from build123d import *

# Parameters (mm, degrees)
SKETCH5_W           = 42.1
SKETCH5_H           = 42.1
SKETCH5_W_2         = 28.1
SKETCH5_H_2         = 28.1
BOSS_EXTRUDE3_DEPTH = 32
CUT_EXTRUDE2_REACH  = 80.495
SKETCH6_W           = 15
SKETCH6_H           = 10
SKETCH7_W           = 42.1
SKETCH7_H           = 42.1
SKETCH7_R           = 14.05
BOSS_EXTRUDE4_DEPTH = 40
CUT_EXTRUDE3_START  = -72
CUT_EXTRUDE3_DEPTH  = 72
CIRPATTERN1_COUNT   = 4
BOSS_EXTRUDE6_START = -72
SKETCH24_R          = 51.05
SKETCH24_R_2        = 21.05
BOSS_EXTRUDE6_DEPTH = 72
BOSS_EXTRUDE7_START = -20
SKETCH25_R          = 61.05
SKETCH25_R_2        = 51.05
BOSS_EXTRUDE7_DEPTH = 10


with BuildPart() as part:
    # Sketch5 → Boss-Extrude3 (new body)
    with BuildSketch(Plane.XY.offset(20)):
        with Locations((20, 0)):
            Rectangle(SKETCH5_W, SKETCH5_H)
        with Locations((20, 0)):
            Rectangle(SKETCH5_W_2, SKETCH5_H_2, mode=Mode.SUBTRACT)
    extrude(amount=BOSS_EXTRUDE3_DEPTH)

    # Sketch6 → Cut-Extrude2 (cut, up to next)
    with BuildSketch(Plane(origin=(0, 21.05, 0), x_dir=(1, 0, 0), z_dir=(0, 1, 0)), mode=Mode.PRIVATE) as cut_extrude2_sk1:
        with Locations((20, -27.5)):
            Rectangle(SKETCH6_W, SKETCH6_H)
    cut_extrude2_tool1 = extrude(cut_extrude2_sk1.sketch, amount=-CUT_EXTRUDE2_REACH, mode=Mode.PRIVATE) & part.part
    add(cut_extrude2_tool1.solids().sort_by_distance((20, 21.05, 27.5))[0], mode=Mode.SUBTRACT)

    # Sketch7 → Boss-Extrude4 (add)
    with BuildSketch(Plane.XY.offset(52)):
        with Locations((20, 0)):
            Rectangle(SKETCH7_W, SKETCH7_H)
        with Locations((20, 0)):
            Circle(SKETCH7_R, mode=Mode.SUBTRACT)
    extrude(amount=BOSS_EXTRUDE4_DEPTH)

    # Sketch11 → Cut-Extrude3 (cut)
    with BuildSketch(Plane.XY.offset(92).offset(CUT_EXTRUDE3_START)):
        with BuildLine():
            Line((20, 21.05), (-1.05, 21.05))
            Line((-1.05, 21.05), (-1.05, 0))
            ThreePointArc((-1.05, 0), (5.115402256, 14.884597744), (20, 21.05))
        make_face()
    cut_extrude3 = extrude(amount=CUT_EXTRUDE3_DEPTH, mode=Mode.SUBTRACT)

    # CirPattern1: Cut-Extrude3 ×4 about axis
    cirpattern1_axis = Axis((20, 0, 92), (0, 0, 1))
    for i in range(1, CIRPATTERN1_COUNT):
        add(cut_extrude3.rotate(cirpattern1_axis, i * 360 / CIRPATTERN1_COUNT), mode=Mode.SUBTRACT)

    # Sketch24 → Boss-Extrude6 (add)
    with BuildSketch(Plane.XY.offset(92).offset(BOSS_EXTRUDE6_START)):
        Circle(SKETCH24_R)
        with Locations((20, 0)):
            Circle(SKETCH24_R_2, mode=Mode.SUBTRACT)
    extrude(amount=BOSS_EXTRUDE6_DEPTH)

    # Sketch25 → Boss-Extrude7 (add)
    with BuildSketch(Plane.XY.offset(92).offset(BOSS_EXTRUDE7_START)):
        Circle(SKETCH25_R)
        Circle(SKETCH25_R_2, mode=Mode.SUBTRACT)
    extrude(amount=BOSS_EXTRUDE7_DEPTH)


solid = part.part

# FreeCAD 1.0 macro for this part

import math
import FreeCAD as App
import Part
import Sketcher
from FreeCAD import Vector

doc = App.newDocument("Part")
body = doc.addObject("PartDesign::Body", "Body")

sketch1 = body.newObject("Sketcher::SketchObject", "Sketch")
sketch1.AttachmentSupport = (doc.getObject("XY_Plane"), [""])
sketch1.MapMode = "FlatFace"
sketch1.AttachmentOffset = App.Placement(Vector(0, 0, 20), App.Rotation())
sketch1.addGeometry(Part.LineSegment(Vector(-1, 21, 0), Vector(-1, -21, 0)), False)
sketch1.addGeometry(Part.LineSegment(Vector(-1, -21, 0), Vector(41, -21, 0)), False)
sketch1.addGeometry(Part.LineSegment(Vector(41, -21, 0), Vector(41, 21, 0)), False)
sketch1.addGeometry(Part.LineSegment(Vector(41, 21, 0), Vector(-1, 21, 0)), False)
sketch1.addGeometry(Part.LineSegment(Vector(34, -14, 0), Vector(6, -14, 0)), False)
sketch1.addGeometry(Part.LineSegment(Vector(6, -14, 0), Vector(6, 14, 0)), False)
sketch1.addGeometry(Part.LineSegment(Vector(6, 14, 0), Vector(34, 14, 0)), False)
sketch1.addGeometry(Part.LineSegment(Vector(34, 14, 0), Vector(34, -14, 0)), False)
sketch1.addConstraint(Sketcher.Constraint("Coincident", 0, 2, 1, 1))
sketch1.addConstraint(Sketcher.Constraint("Coincident", 1, 2, 2, 1))
sketch1.addConstraint(Sketcher.Constraint("Coincident", 2, 2, 3, 1))
sketch1.addConstraint(Sketcher.Constraint("Coincident", 3, 2, 0, 1))
sketch1.addConstraint(Sketcher.Constraint("Coincident", 4, 2, 5, 1))
sketch1.addConstraint(Sketcher.Constraint("Coincident", 5, 2, 6, 1))
sketch1.addConstraint(Sketcher.Constraint("Coincident", 6, 2, 7, 1))
sketch1.addConstraint(Sketcher.Constraint("Coincident", 7, 2, 4, 1))
sketch1.addConstraint(Sketcher.Constraint("Vertical", 0))
sketch1.addConstraint(Sketcher.Constraint("Horizontal", 1))
sketch1.addConstraint(Sketcher.Constraint("Vertical", 2))
sketch1.addConstraint(Sketcher.Constraint("Horizontal", 3))
sketch1.addConstraint(Sketcher.Constraint("Horizontal", 4))
sketch1.addConstraint(Sketcher.Constraint("Vertical", 5))
sketch1.addConstraint(Sketcher.Constraint("Horizontal", 6))
sketch1.addConstraint(Sketcher.Constraint("Vertical", 7))
sketch1.addConstraint(Sketcher.Constraint("Equal", 3, 0))
sketch1.addConstraint(Sketcher.Constraint("Equal", 6, 5))
sketch1.addConstraint(Sketcher.Constraint("DistanceX", 1, 1, 1, 2, 42.1))
sketch1.addConstraint(Sketcher.Constraint("DistanceX", 4, 2, 4, 1, 28.1))
sketch1.addConstraint(Sketcher.Constraint("DistanceX", 0, 2, 4, 2, 7.0))
sketch1.addConstraint(Sketcher.Constraint("DistanceY", 0, 2, 4, 2, 7.0))
sketch1.addConstraint(Sketcher.Constraint("DistanceX", 0, 2, -1, 1, 1.05))
sketch1.addConstraint(Sketcher.Constraint("DistanceY", 0, 2, -1, 1, 21.05))
pad1 = body.newObject("PartDesign::Pad", "Pad")
pad1.Profile = sketch1
pad1.Length = 32

sketch2 = body.newObject("Sketcher::SketchObject", "Sketch001")
sketch2.AttachmentSupport = (doc.getObject("XZ_Plane"), [""])
sketch2.MapMode = "FlatFace"
sketch2.AttachmentOffset = App.Placement(Vector(0, 0, -21.05), App.Rotation())
sketch2.addGeometry(Part.LineSegment(Vector(12, 22, 0), Vector(12, 32, 0)), False)
sketch2.addGeometry(Part.LineSegment(Vector(12, 32, 0), Vector(28, 32, 0)), False)
sketch2.addGeometry(Part.LineSegment(Vector(28, 32, 0), Vector(28, 22, 0)), False)
sketch2.addGeometry(Part.LineSegment(Vector(28, 22, 0), Vector(12, 22, 0)), False)
sketch2.addConstraint(Sketcher.Constraint("Coincident", 0, 2, 1, 1))
sketch2.addConstraint(Sketcher.Constraint("Coincident", 1, 2, 2, 1))
sketch2.addConstraint(Sketcher.Constraint("Coincident", 2, 2, 3, 1))
sketch2.addConstraint(Sketcher.Constraint("Coincident", 3, 2, 0, 1))
sketch2.addConstraint(Sketcher.Constraint("Vertical", 0))
sketch2.addConstraint(Sketcher.Constraint("Horizontal", 1))
sketch2.addConstraint(Sketcher.Constraint("Vertical", 2))
sketch2.addConstraint(Sketcher.Constraint("Horizontal", 3))
sketch2.addConstraint(Sketcher.Constraint("DistanceX", 1, 1, 1, 2, 15.0))
sketch2.addConstraint(Sketcher.Constraint("DistanceY", 0, 1, 0, 2, 10.0))
sketch2.addConstraint(Sketcher.Constraint("DistanceX", -1, 1, 0, 2, 12.5))
sketch2.addConstraint(Sketcher.Constraint("DistanceY", -1, 1, 0, 2, 32.5))
pocket1 = body.newObject("PartDesign::Pocket", "Pocket")
pocket1.Profile = sketch2
pocket1.Type = "UpToFirst"
pocket1.Reversed = True

sketch3 = body.newObject("Sketcher::SketchObject", "Sketch002")
sketch3.AttachmentSupport = (doc.getObject("XY_Plane"), [""])
sketch3.MapMode = "FlatFace"
sketch3.AttachmentOffset = App.Placement(Vector(0, 0, 52), App.Rotation())
sketch3.addGeometry(Part.LineSegment(Vector(-1, 21, 0), Vector(-1, -21, 0)), False)
sketch3.addGeometry(Part.LineSegment(Vector(-1, -21, 0), Vector(41, -21, 0)), False)
sketch3.addGeometry(Part.LineSegment(Vector(41, -21, 0), Vector(41, 21, 0)), False)
sketch3.addGeometry(Part.LineSegment(Vector(41, 21, 0), Vector(-1, 21, 0)), False)
sketch3.addGeometry(Part.Circle(Vector(20, 0, 0), Vector(0, 0, 1), 14), False)
sketch3.addConstraint(Sketcher.Constraint("Coincident", 0, 2, 1, 1))
sketch3.addConstraint(Sketcher.Constraint("Coincident", 1, 2, 2, 1))
sketch3.addConstraint(Sketcher.Constraint("Coincident", 2, 2, 3, 1))
sketch3.addConstraint(Sketcher.Constraint("Coincident", 3, 2, 0, 1))
sketch3.addConstraint(Sketcher.Constraint("Vertical", 0))
sketch3.addConstraint(Sketcher.Constraint("Horizontal", 1))
sketch3.addConstraint(Sketcher.Constraint("Vertical", 2))
sketch3.addConstraint(Sketcher.Constraint("Horizontal", 3))
sketch3.addConstraint(Sketcher.Constraint("PointOnObject", 4, 3, -1))
sketch3.addConstraint(Sketcher.Constraint("Equal", 3, 0))
sketch3.addConstraint(Sketcher.Constraint("Diameter", 4, 28.1))
sketch3.addConstraint(Sketcher.Constraint("DistanceX", 1, 1, 1, 2, 42.1))
sketch3.addConstraint(Sketcher.Constraint("DistanceX", -1, 1, 4, 3, 20.0))
sketch3.addConstraint(Sketcher.Constraint("DistanceX", 0, 2, -1, 1, 1.05))
sketch3.addConstraint(Sketcher.Constraint("DistanceY", 0, 2, -1, 1, 21.05))
pad2 = body.newObject("PartDesign::Pad", "Pad001")
pad2.Profile = sketch3
pad2.Length = 40

sketch4 = body.newObject("Sketcher::SketchObject", "Sketch003")
sketch4.AttachmentSupport = (doc.getObject("XY_Plane"), [""])
sketch4.MapMode = "FlatFace"
sketch4.AttachmentOffset = App.Placement(Vector(0, 0, 20), App.Rotation())
sketch4.addGeometry(Part.LineSegment(Vector(20, 21, 0), Vector(-1, 21, 0)), False)
sketch4.addGeometry(Part.LineSegment(Vector(-1, 21, 0), Vector(-1, 0, 0)), False)
sketch4.addGeometry(Part.ArcOfCircle(Part.Circle(Vector(20, 0, 0), Vector(0, 0, 1), 21), math.radians(90), math.radians(180)), False)
sketch4.addConstraint(Sketcher.Constraint("Coincident", 0, 2, 1, 1))
sketch4.addConstraint(Sketcher.Constraint("Tangent", 1, 2, 2, 2))
sketch4.addConstraint(Sketcher.Constraint("Tangent", 2, 1, 0, 1))
sketch4.addConstraint(Sketcher.Constraint("Horizontal", 0))
sketch4.addConstraint(Sketcher.Constraint("Vertical", 1))
sketch4.addConstraint(Sketcher.Constraint("PointOnObject", 2, 3, -1))
sketch4.addConstraint(Sketcher.Constraint("Radius", 2, 21.05))
sketch4.addConstraint(Sketcher.Constraint("DistanceX", -1, 1, 2, 3, 20.0))
pocket2 = body.newObject("PartDesign::Pocket", "Pocket001")
pocket2.Profile = sketch4
pocket2.Length = 72
pocket2.Reversed = True
doc.recompute()

datumline = body.newObject("PartDesign::Line", "DatumLine")
datumline.Placement = App.Placement(Vector(20, 0, 0), App.Rotation(Vector(0, 0, 1), Vector(0, 0, 1)))
polarpattern = body.newObject("PartDesign::PolarPattern", "PolarPattern")
polarpattern.Originals = [pocket2]
polarpattern.Axis = (datumline, [""])
polarpattern.Angle = 360
polarpattern.Occurrences = 4
body.Tip = polarpattern

sketch5 = body.newObject("Sketcher::SketchObject", "Sketch004")
sketch5.AttachmentSupport = (doc.getObject("XY_Plane"), [""])
sketch5.MapMode = "FlatFace"
sketch5.AttachmentOffset = App.Placement(Vector(0, 0, 20), App.Rotation())
sketch5.addGeometry(Part.Circle(Vector(0, 0, 0), Vector(0, 0, 1), 51), False)
sketch5.addGeometry(Part.Circle(Vector(20, 0, 0), Vector(0, 0, 1), 21), False)
sketch5.addConstraint(Sketcher.Constraint("Coincident", 0, 3, -1, 1))
sketch5.addConstraint(Sketcher.Constraint("PointOnObject", 1, 3, -1))
sketch5.addConstraint(Sketcher.Constraint("Diameter", 0, 102.1))
sketch5.addConstraint(Sketcher.Constraint("Diameter", 1, 42.1))
sketch5.addConstraint(Sketcher.Constraint("DistanceX", -1, 1, 1, 3, 20.0))
pad3 = body.newObject("PartDesign::Pad", "Pad002")
pad3.Profile = sketch5
pad3.Length = 72

sketch6 = body.newObject("Sketcher::SketchObject", "Sketch005")
sketch6.AttachmentSupport = (doc.getObject("XY_Plane"), [""])
sketch6.MapMode = "FlatFace"
sketch6.AttachmentOffset = App.Placement(Vector(0, 0, 72), App.Rotation())
sketch6.addGeometry(Part.Circle(Vector(0, 0, 0), Vector(0, 0, 1), 61), False)
sketch6.addGeometry(Part.Circle(Vector(0, 0, 0), Vector(0, 0, 1), 51), False)
sketch6.addConstraint(Sketcher.Constraint("Coincident", 0, 3, -1, 1))
sketch6.addConstraint(Sketcher.Constraint("Coincident", 1, 3, -1, 1))
sketch6.addConstraint(Sketcher.Constraint("Diameter", 0, 122.1))
sketch6.addConstraint(Sketcher.Constraint("Diameter", 1, 102.1))
pad4 = body.newObject("PartDesign::Pad", "Pad003")
pad4.Profile = sketch6
pad4.Length = 10

doc.recompute()
